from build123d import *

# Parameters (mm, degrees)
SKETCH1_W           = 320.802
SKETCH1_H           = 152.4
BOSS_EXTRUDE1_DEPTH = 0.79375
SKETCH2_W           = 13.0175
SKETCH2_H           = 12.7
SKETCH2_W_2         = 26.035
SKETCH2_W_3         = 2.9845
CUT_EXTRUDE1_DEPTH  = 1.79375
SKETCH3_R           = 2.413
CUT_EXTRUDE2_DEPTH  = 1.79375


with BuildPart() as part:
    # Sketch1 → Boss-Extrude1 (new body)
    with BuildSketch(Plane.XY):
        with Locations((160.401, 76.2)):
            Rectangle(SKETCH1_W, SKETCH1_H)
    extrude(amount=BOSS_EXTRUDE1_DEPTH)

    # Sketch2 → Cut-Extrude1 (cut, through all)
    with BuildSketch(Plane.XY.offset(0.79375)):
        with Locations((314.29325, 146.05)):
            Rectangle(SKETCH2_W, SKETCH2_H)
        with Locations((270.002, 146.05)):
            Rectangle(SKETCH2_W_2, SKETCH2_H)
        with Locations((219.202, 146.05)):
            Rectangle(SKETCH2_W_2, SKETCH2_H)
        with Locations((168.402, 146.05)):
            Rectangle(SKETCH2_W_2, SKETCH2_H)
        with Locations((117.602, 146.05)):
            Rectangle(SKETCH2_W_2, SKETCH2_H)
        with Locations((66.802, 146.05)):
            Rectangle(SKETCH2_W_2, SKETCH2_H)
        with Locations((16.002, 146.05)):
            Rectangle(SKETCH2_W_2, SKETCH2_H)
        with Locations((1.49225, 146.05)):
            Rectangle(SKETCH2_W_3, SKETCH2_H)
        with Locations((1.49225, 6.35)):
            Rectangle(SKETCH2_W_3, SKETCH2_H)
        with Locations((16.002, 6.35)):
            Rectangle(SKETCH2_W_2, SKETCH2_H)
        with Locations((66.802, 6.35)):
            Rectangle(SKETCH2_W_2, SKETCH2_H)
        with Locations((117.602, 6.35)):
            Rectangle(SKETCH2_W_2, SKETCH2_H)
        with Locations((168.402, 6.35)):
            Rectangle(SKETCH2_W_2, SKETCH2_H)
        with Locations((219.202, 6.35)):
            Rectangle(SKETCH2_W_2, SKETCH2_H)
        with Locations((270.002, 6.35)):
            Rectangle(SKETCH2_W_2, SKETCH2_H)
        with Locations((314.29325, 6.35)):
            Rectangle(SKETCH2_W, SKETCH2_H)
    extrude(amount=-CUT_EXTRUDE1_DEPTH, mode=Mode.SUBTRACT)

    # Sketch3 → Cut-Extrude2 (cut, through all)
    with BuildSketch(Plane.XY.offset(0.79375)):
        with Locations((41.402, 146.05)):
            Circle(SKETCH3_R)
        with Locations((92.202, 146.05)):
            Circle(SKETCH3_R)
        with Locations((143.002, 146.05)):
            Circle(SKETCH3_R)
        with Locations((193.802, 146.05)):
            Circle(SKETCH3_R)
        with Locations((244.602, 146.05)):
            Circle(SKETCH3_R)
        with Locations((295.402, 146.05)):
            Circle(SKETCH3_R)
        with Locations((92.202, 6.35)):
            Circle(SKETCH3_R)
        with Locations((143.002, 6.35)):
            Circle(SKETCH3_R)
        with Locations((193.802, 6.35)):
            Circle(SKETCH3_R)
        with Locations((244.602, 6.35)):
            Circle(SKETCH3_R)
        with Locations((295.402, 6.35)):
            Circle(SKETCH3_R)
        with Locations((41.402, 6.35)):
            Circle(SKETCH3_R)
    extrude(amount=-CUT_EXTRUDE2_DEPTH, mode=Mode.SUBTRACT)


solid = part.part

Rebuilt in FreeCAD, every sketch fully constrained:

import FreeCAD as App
import Part
import Sketcher
Q = App.Units.Quantity

doc = App.newDocument("Part")
body = doc.addObject("PartDesign::Body", "Body")

sketch1 = body.newObject("Sketcher::SketchObject", "Sketch")
sketch1.AttachmentSupport = (doc.getObject("XY_Plane"), [""])
sketch1.MapMode = "FlatFace"
sketch1.addGeometry([
    Part.LineSegment(App.Vector(0, 152.4, 0), App.Vector(0, 0, 0)),
    Part.LineSegment(App.Vector(0, 0, 0), App.Vector(320.802, 0, 0)),
    Part.LineSegment(App.Vector(320.802, 0, 0), App.Vector(320.802, 152.4, 0)),
    Part.LineSegment(App.Vector(320.802, 152.4, 0), App.Vector(0, 152.4, 0)),
], False)
sketch1.addConstraint([
    Sketcher.Constraint("Coincident", 0, 2, 1, 1),
    Sketcher.Constraint("Coincident", 1, 2, 2, 1),
    Sketcher.Constraint("Coincident", 2, 2, 3, 1),
    Sketcher.Constraint("Coincident", 3, 2, 0, 1),
    Sketcher.Constraint("Vertical", 0),
    Sketcher.Constraint("Horizontal", 1),
    Sketcher.Constraint("Vertical", 2),
    Sketcher.Constraint("Horizontal", 3),
    Sketcher.Constraint("Coincident", 0, 2, -1, 1),
    Sketcher.Constraint("DistanceY", 0, 2, 0, 1, Q("6 in")),
    Sketcher.Constraint("DistanceX", 1, 1, 1, 2, Q("12.63 in")),
])
pad1 = body.newObject("PartDesign::Pad", "Pad")
pad1.Profile = sketch1
pad1.Length = Q("0.03125 in")

sketch2 = body.newObject("Sketcher::SketchObject", "Sketch001")
sketch2.AttachmentSupport = (doc.getObject("XY_Plane"), [""])
sketch2.MapMode = "FlatFace"
sketch2.AttachmentOffset = App.Placement(App.Vector(0, 0, 0.03125 * 25.4), App.Rotation())
sketch2.addGeometry([
    Part.LineSegment(App.Vector(307.7845, 152.4, 0), App.Vector(307.7845, 139.7, 0)),
    Part.LineSegment(App.Vector(307.7845, 139.7, 0), App.Vector(320.802, 139.7, 0)),
    Part.LineSegment(App.Vector(320.802, 139.7, 0), App.Vector(320.802, 152.4, 0)),
    Part.LineSegment(App.Vector(320.802, 152.4, 0), App.Vector(307.7845, 152.4, 0)),
    Part.LineSegment(App.Vector(256.9845, 152.4, 0), App.Vector(256.9845, 139.7, 0)),
    Part.LineSegment(App.Vector(256.9845, 139.7, 0), App.Vector(283.0195, 139.7, 0)),
    Part.LineSegment(App.Vector(283.0195, 139.7, 0), App.Vector(283.0195, 152.4, 0)),
    Part.LineSegment(App.Vector(283.0195, 152.4, 0), App.Vector(256.9845, 152.4, 0)),
    Part.LineSegment(App.Vector(206.1845, 152.4, 0), App.Vector(206.1845, 139.7, 0)),
    Part.LineSegment(App.Vector(206.1845, 139.7, 0), App.Vector(232.2195, 139.7, 0)),
    Part.LineSegment(App.Vector(232.2195, 139.7, 0), App.Vector(232.2195, 152.4, 0)),
    Part.LineSegment(App.Vector(232.2195, 152.4, 0), App.Vector(206.1845, 152.4, 0)),
    Part.LineSegment(App.Vector(155.3845, 152.4, 0), App.Vector(155.3845, 139.7, 0)),
    Part.LineSegment(App.Vector(155.3845, 139.7, 0), App.Vector(181.4195, 139.7, 0)),
    Part.LineSegment(App.Vector(181.4195, 139.7, 0), App.Vector(181.4195, 152.4, 0)),
    Part.LineSegment(App.Vector(181.4195, 152.4, 0), App.Vector(155.3845, 152.4, 0)),
    Part.LineSegment(App.Vector(104.5845, 152.4, 0), App.Vector(104.5845, 139.7, 0)),
    Part.LineSegment(App.Vector(104.5845, 139.7, 0), App.Vector(130.6195, 139.7, 0)),
    Part.LineSegment(App.Vector(130.6195, 139.7, 0), App.Vector(130.6195, 152.4, 0)),
    Part.LineSegment(App.Vector(130.6195, 152.4, 0), App.Vector(104.5845, 152.4, 0)),
    Part.LineSegment(App.Vector(53.7845, 152.4, 0), App.Vector(53.7845, 139.7, 0)),
    Part.LineSegment(App.Vector(53.7845, 139.7, 0), App.Vector(79.8195, 139.7, 0)),
    Part.LineSegment(App.Vector(79.8195, 139.7, 0), App.Vector(79.8195, 152.4, 0)),
    Part.LineSegment(App.Vector(79.8195, 152.4, 0), App.Vector(53.7845, 152.4, 0)),
    Part.LineSegment(App.Vector(29.0195, 139.7, 0), App.Vector(29.0195, 152.4, 0)),
    Part.LineSegment(App.Vector(29.0195, 152.4, 0), App.Vector(0, 152.4, 0)),
    Part.LineSegment(App.Vector(0, 152.4, 0), App.Vector(0, 139.7, 0)),
    Part.LineSegment(App.Vector(0, 139.7, 0), App.Vector(29.0195, 139.7, 0)),
    Part.LineSegment(App.Vector(0, 12.7, 0), App.Vector(0, 0, 0)),
    Part.LineSegment(App.Vector(0, 0, 0), App.Vector(29.0195, 0, 0)),
    Part.LineSegment(App.Vector(29.0195, 0, 0), App.Vector(29.0195, 12.7, 0)),
    Part.LineSegment(App.Vector(29.0195, 12.7, 0), App.Vector(0, 12.7, 0)),
    Part.LineSegment(App.Vector(53.7845, 12.7, 0), App.Vector(53.7845, 0, 0)),
    Part.LineSegment(App.Vector(53.7845, 0, 0), App.Vector(79.8195, 0, 0)),
    Part.LineSegment(App.Vector(79.8195, 0, 0), App.Vector(79.8195, 12.7, 0)),
    Part.LineSegment(App.Vector(79.8195, 12.7, 0), App.Vector(53.7845, 12.7, 0)),
    Part.LineSegment(App.Vector(104.5845, 12.7, 0), App.Vector(104.5845, 0, 0)),
    Part.LineSegment(App.Vector(104.5845, 0, 0), App.Vector(130.6195, 0, 0)),
    Part.LineSegment(App.Vector(130.6195, 0, 0), App.Vector(130.6195, 12.7, 0)),
    Part.LineSegment(App.Vector(130.6195, 12.7, 0), App.Vector(104.5845, 12.7, 0)),
    Part.LineSegment(App.Vector(155.3845, 12.7, 0), App.Vector(155.3845, 0, 0)),
    Part.LineSegment(App.Vector(155.3845, 0, 0), App.Vector(181.4195, 0, 0)),
    Part.LineSegment(App.Vector(181.4195, 0, 0), App.Vector(181.4195, 12.7, 0)),
    Part.LineSegment(App.Vector(181.4195, 12.7, 0), App.Vector(155.3845, 12.7, 0)),
    Part.LineSegment(App.Vector(206.1845, 12.7, 0), App.Vector(206.1845, 0, 0)),
    Part.LineSegment(App.Vector(206.1845, 0, 0), App.Vector(232.2195, 0, 0)),
    Part.LineSegment(App.Vector(232.2195, 0, 0), App.Vector(232.2195, 12.7, 0)),
    Part.LineSegment(App.Vector(232.2195, 12.7, 0), App.Vector(206.1845, 12.7, 0)),
    Part.LineSegment(App.Vector(256.9845, 12.7, 0), App.Vector(256.9845, 0, 0)),
    Part.LineSegment(App.Vector(256.9845, 0, 0), App.Vector(283.0195, 0, 0)),
    Part.LineSegment(App.Vector(283.0195, 0, 0), App.Vector(283.0195, 12.7, 0)),
    Part.LineSegment(App.Vector(283.0195, 12.7, 0), App.Vector(256.9845, 12.7, 0)),
    Part.LineSegment(App.Vector(307.7845, 12.7, 0), App.Vector(307.7845, 0, 0)),
    Part.LineSegment(App.Vector(307.7845, 0, 0), App.Vector(320.802, 0, 0)),
    Part.LineSegment(App.Vector(320.802, 0, 0), App.Vector(320.802, 12.7, 0)),
    Part.LineSegment(App.Vector(320.802, 12.7, 0), App.Vector(307.7845, 12.7, 0)),
], False)
sketch2.addConstraint([
    Sketcher.Constraint("Coincident", 0, 2, 1, 1),
    Sketcher.Constraint("Coincident", 1, 2, 2, 1),
    Sketcher.Constraint("Coincident", 2, 2, 3, 1),
    Sketcher.Constraint("Coincident", 3, 2, 0, 1),
    Sketcher.Constraint("Coincident", 4, 2, 5, 1),
    Sketcher.Constraint("Coincident", 5, 2, 6, 1),
    Sketcher.Constraint("Coincident", 6, 2, 7, 1),
    Sketcher.Constraint("Coincident", 7, 2, 4, 1),
    Sketcher.Constraint("Coincident", 8, 2, 9, 1),
    Sketcher.Constraint("Coincident", 9, 2, 10, 1),
    Sketcher.Constraint("Coincident", 10, 2, 11, 1),
    Sketcher.Constraint("Coincident", 11, 2, 8, 1),
    Sketcher.Constraint("Coincident", 12, 2, 13, 1),
    Sketcher.Constraint("Coincident", 13, 2, 14, 1),
    Sketcher.Constraint("Coincident", 14, 2, 15, 1),
    Sketcher.Constraint("Coincident", 15, 2, 12, 1),
    Sketcher.Constraint("Coincident", 16, 2, 17, 1),
    Sketcher.Constraint("Coincident", 17, 2, 18, 1),
    Sketcher.Constraint("Coincident", 18, 2, 19, 1),
    Sketcher.Constraint("Coincident", 19, 2, 16, 1),
    Sketcher.Constraint("Coincident", 20, 2, 21, 1),
    Sketcher.Constraint("Coincident", 21, 2, 22, 1),
    Sketcher.Constraint("Coincident", 22, 2, 23, 1),
    Sketcher.Constraint("Coincident", 23, 2, 20, 1),
    Sketcher.Constraint("Coincident", 24, 2, 25, 1),
    Sketcher.Constraint("Coincident", 25, 2, 26, 1),
    Sketcher.Constraint("Coincident", 26, 2, 27, 1),
    Sketcher.Constraint("Coincident", 27, 2, 24, 1),
    Sketcher.Constraint("Coincident", 28, 2, 29, 1),
    Sketcher.Constraint("Coincident", 29, 2, 30, 1),
    Sketcher.Constraint("Coincident", 30, 2, 31, 1),
    Sketcher.Constraint("Coincident", 31, 2, 28, 1),
    Sketcher.Constraint("Coincident", 32, 2, 33, 1),
    Sketcher.Constraint("Coincident", 33, 2, 34, 1),
    Sketcher.Constraint("Coincident", 34, 2, 35, 1),
    Sketcher.Constraint("Coincident", 35, 2, 32, 1),
    Sketcher.Constraint("Coincident", 36, 2, 37, 1),
    Sketcher.Constraint("Coincident", 37, 2, 38, 1),
    Sketcher.Constraint("Coincident", 38, 2, 39, 1),
    Sketcher.Constraint("Coincident", 39, 2, 36, 1),
    Sketcher.Constraint("Coincident", 40, 2, 41, 1),
    Sketcher.Constraint("Coincident", 41, 2, 42, 1),
    Sketcher.Constraint("Coincident", 42, 2, 43, 1),
    Sketcher.Constraint("Coincident", 43, 2, 40, 1),
    Sketcher.Constraint("Coincident", 44, 2, 45, 1),
    Sketcher.Constraint("Coincident", 45, 2, 46, 1),
    Sketcher.Constraint("Coincident", 46, 2, 47, 1),
    Sketcher.Constraint("Coincident", 47, 2, 44, 1),
    Sketcher.Constraint("Coincident", 48, 2, 49, 1),
    Sketcher.Constraint("Coincident", 49, 2, 50, 1),
    Sketcher.Constraint("Coincident", 50, 2, 51, 1),
    Sketcher.Constraint("Coincident", 51, 2, 48, 1),
    Sketcher.Constraint("Coincident", 52, 2, 53, 1),
    Sketcher.Constraint("Coincident", 53, 2, 54, 1),
    Sketcher.Constraint("Coincident", 54, 2, 55, 1),
    Sketcher.Constraint("Coincident", 55, 2, 52, 1),
    Sketcher.Constraint("Vertical", 0),
    Sketcher.Constraint("Horizontal", 1),
    Sketcher.Constraint("Vertical", 2),
    Sketcher.Constraint("Horizontal", 3),
    Sketcher.Constraint("Vertical", 4),
    Sketcher.Constraint("Horizontal", 5),
    Sketcher.Constraint("Vertical", 6),
    Sketcher.Constraint("Horizontal", 7),
    Sketcher.Constraint("Vertical", 8),
    Sketcher.Constraint("Horizontal", 9),
    Sketcher.Constraint("Vertical", 10),
    Sketcher.Constraint("Horizontal", 11),
    Sketcher.Constraint("Vertical", 12),
    Sketcher.Constraint("Horizontal", 13),
    Sketcher.Constraint("Vertical", 14),
    Sketcher.Constraint("Horizontal", 15),
    Sketcher.Constraint("Vertical", 16),
    Sketcher.Constraint("Horizontal", 17),
    Sketcher.Constraint("Vertical", 18),
    Sketcher.Constraint("Horizontal", 19),
    Sketcher.Constraint("Vertical", 20),
    Sketcher.Constraint("Horizontal", 21),
    Sketcher.Constraint("Vertical", 22),
    Sketcher.Constraint("Horizontal", 23),
    Sketcher.Constraint("Vertical", 24),
    Sketcher.Constraint("Horizontal", 25),
    Sketcher.Constraint("Vertical", 26),
    Sketcher.Constraint("Horizontal", 27),
    Sketcher.Constraint("Vertical", 28),
    Sketcher.Constraint("Horizontal", 29),
    Sketcher.Constraint("Vertical", 30),
    Sketcher.Constraint("Horizontal", 31),
    Sketcher.Constraint("Vertical", 32),
    Sketcher.Constraint("Horizontal", 33),
    Sketcher.Constraint("Vertical", 34),
    Sketcher.Constraint("Horizontal", 35),
    Sketcher.Constraint("Vertical", 36),
    Sketcher.Constraint("Horizontal", 37),
    Sketcher.Constraint("Vertical", 38),
    Sketcher.Constraint("Horizontal", 39),
    Sketcher.Constraint("Vertical", 40),
    Sketcher.Constraint("Horizontal", 41),
    Sketcher.Constraint("Vertical", 42),
    Sketcher.Constraint("Horizontal", 43),
    Sketcher.Constraint("Vertical", 44),
    Sketcher.Constraint("Horizontal", 45),
    Sketcher.Constraint("Vertical", 46),
    Sketcher.Constraint("Horizontal", 47),
    Sketcher.Constraint("Vertical", 48),
    Sketcher.Constraint("Horizontal", 49),
    Sketcher.Constraint("Vertical", 50),
    Sketcher.Constraint("Horizontal", 51),
    Sketcher.Constraint("Vertical", 52),
    Sketcher.Constraint("Horizontal", 53),
    Sketcher.Constraint("Vertical", 54),
    Sketcher.Constraint("Horizontal", 55),
    Sketcher.Constraint("Coincident", 28, 2, -1, 1),
    Sketcher.Constraint("PointOnObject", 25, 2, -2),
    Sketcher.Constraint("PointOnObject", 32, 2, -1),
    Sketcher.Constraint("PointOnObject", 36, 2, -1),
    Sketcher.Constraint("PointOnObject", 40, 2, -1),
    Sketcher.Constraint("PointOnObject", 44, 2, -1),
    Sketcher.Constraint("PointOnObject", 48, 2, -1),
    Sketcher.Constraint("PointOnObject", 52, 2, -1),
    Sketcher.Constraint("Horizontal", 1, 2, 4, 2),
    Sketcher.Constraint("Horizontal", 3, 2, 6, 2),
    Sketcher.Constraint("Horizontal", 5, 2, 8, 2),
    Sketcher.Constraint("Horizontal", 7, 2, 10, 2),
    Sketcher.Constraint("Horizontal", 9, 2, 12, 2),
    Sketcher.Constraint("Horizontal", 11, 2, 14, 2),
    Sketcher.Constraint("Horizontal", 13, 2, 16, 2),
    Sketcher.Constraint("Horizontal", 15, 2, 18, 2),
    Sketcher.Constraint("Horizontal", 17, 2, 20, 2),
    Sketcher.Constraint("Horizontal", 19, 2, 22, 2),
    Sketcher.Constraint("Horizontal", 23, 2, 24, 2),
    Sketcher.Constraint("Horizontal", 21, 2, 26, 2),
    Sketcher.Constraint("Horizontal", 31, 2, 34, 2),
    Sketcher.Constraint("Horizontal", 35, 2, 38, 2),
    Sketcher.Constraint("Horizontal", 39, 2, 42, 2),
    Sketcher.Constraint("Horizontal", 43, 2, 46, 2),
    Sketcher.Constraint("Horizontal", 47, 2, 50, 2),
    Sketcher.Constraint("Horizontal", 51, 2, 54, 2),
    Sketcher.Constraint("Vertical", 27, 2, 29, 2),
    Sketcher.Constraint("Vertical", 23, 2, 32, 2),
    Sketcher.Constraint("Vertical", 22, 2, 33, 2),
    Sketcher.Constraint("Vertical", 19, 2, 36, 2),
    Sketcher.Constraint("Vertical", 18, 2, 37, 2),
    Sketcher.Constraint("Vertical", 15, 2, 40, 2),
    Sketcher.Constraint("Vertical", 14, 2, 41, 2),
    Sketcher.Constraint("Vertical", 11, 2, 44, 2),
    Sketcher.Constraint("Vertical", 10, 2, 45, 2),
    Sketcher.Constraint("Vertical", 7, 2, 48, 2),
    Sketcher.Constraint("Vertical", 6, 2, 49, 2),
    Sketcher.Constraint("Vertical", 3, 2, 52, 2),
    Sketcher.Constraint("Vertical", 2, 2, 53, 2),
    Sketcher.Constraint("Equal", 7, 9),
    Sketcher.Constraint("Equal", 11, 13),
    Sketcher.Constraint("Equal", 15, 17),
    Sketcher.Constraint("Equal", 19, 21),
    Sketcher.Constraint("Equal", 26, 28),
    Sketcher.Constraint("DistanceY", 0, 2, 0, 1, Q("0.5 in")),
    Sketcher.Constraint("DistanceY", -1, 1, 2, 2, Q("6 in")),
    Sketcher.Constraint("DistanceX", 4, 2, 0, 2, Q("2 in")),
    Sketcher.Constraint("DistanceX", 8, 2, 4, 2, Q("2 in")),
    Sketcher.Constraint("DistanceX", 12, 2, 8, 2, Q("2 in")),
    Sketcher.Constraint("DistanceX", 16, 2, 12, 2, Q("2 in")),
    Sketcher.Constraint("DistanceX", 20, 2, 16, 2, Q("2 in")),
    Sketcher.Constraint("DistanceX", 24, 2, 22, 2, Q("2 in")),
    Sketcher.Constraint("DistanceX", 5, 1, 5, 2, Q("1.025 in")),
    Sketcher.Constraint("DistanceX", -1, 1, 1, 2, Q("12.63 in")),
    Sketcher.Constraint("DistanceX", 1, 1, 1, 2, Q("0.5125 in")),
])
pocket1 = body.newObject("PartDesign::Pocket", "Pocket")
pocket1.Profile = sketch2
pocket1.Type = "ThroughAll"

sketch3 = body.newObject("Sketcher::SketchObject", "Sketch002")
sketch3.AttachmentSupport = (doc.getObject("XY_Plane"), [""])
sketch3.MapMode = "FlatFace"
sketch3.AttachmentOffset = App.Placement(App.Vector(0, 0, 0.03125 * 25.4), App.Rotation())
sketch3.addGeometry([
    Part.Circle(App.Vector(41.402, 146.05, 0), App.Vector(0, 0, 1), 2.413),
    Part.Circle(App.Vector(92.202, 146.05, 0), App.Vector(0, 0, 1), 2.413),
    Part.Circle(App.Vector(143.002, 146.05, 0), App.Vector(0, 0, 1), 2.413),
    Part.Circle(App.Vector(193.802, 146.05, 0), App.Vector(0, 0, 1), 2.413),
    Part.Circle(App.Vector(244.602, 146.05, 0), App.Vector(0, 0, 1), 2.413),
    Part.Circle(App.Vector(295.402, 146.05, 0), App.Vector(0, 0, 1), 2.413),
    Part.Circle(App.Vector(92.202, 6.35, 0), App.Vector(0, 0, 1), 2.413),
    Part.Circle(App.Vector(143.002, 6.35, 0), App.Vector(0, 0, 1), 2.413),
    Part.Circle(App.Vector(193.802, 6.35, 0), App.Vector(0, 0, 1), 2.413),
    Part.Circle(App.Vector(244.602, 6.35, 0), App.Vector(0, 0, 1), 2.413),
    Part.Circle(App.Vector(295.402, 6.35, 0), App.Vector(0, 0, 1), 2.413),
    Part.Circle(App.Vector(41.402, 6.35, 0), App.Vector(0, 0, 1), 2.413),
], False)
sketch3.addConstraint([
    Sketcher.Constraint("Equal", 0, 1),
    Sketcher.Constraint("Equal", 1, 2),
    Sketcher.Constraint("Equal", 2, 3),
    Sketcher.Constraint("Equal", 3, 4),
    Sketcher.Constraint("Equal", 4, 5),
    Sketcher.Constraint("Equal", 5, 6),
    Sketcher.Constraint("Equal", 6, 7),
    Sketcher.Constraint("Equal", 7, 8),
    Sketcher.Constraint("Equal", 8, 9),
    Sketcher.Constraint("Equal", 9, 10),
    Sketcher.Constraint("Equal", 10, 11),
    Sketcher.Constraint("Horizontal", 0, 3, 1, 3),
    Sketcher.Constraint("Horizontal", 1, 3, 2, 3),
    Sketcher.Constraint("Horizontal", 2, 3, 3, 3),
    Sketcher.Constraint("Horizontal", 3, 3, 4, 3),
    Sketcher.Constraint("Horizontal", 4, 3, 5, 3),
    Sketcher.Constraint("Horizontal", 6, 3, 7, 3),
    Sketcher.Constraint("Horizontal", 7, 3, 8, 3),
    Sketcher.Constraint("Horizontal", 8, 3, 9, 3),
    Sketcher.Constraint("Horizontal", 9, 3, 10, 3),
    Sketcher.Constraint("Horizontal", 10, 3, 11, 3),
    Sketcher.Constraint("Vertical", 1, 3, 6, 3),
    Sketcher.Constraint("Vertical", 2, 3, 7, 3),
    Sketcher.Constraint("Vertical", 3, 3, 8, 3),
    Sketcher.Constraint("Vertical", 4, 3, 9, 3),
    Sketcher.Constraint("Vertical", 5, 3, 10, 3),
    Sketcher.Constraint("Vertical", 0, 3, 11, 3),
    Sketcher.Constraint("Diameter", 0, Q("0.19 in")),
    Sketcher.Constraint("DistanceX", 0, 3, 1, 3, Q("2 in")),
    Sketcher.Constraint("DistanceX", 1, 3, 2, 3, Q("2 in")),
    Sketcher.Constraint("DistanceX", 2, 3, 3, 3, Q("2 in")),
    Sketcher.Constraint("DistanceX", 3, 3, 4, 3, Q("2 in")),
    Sketcher.Constraint("DistanceX", 4, 3, 5, 3, Q("2 in")),
    Sketcher.Constraint("DistanceY", 6, 3, 1, 3, Q("5.5 in")),
    Sketcher.Constraint("DistanceX", -1, 1, 0, 3, Q("1.63 in")),
    Sketcher.Constraint("DistanceY", -1, 1, 0, 3, Q("5.75 in")),
])
pocket2 = body.newObject("PartDesign::Pocket", "Pocket001")
pocket2.Profile = sketch3
pocket2.Type = "ThroughAll"

doc.recompute()
